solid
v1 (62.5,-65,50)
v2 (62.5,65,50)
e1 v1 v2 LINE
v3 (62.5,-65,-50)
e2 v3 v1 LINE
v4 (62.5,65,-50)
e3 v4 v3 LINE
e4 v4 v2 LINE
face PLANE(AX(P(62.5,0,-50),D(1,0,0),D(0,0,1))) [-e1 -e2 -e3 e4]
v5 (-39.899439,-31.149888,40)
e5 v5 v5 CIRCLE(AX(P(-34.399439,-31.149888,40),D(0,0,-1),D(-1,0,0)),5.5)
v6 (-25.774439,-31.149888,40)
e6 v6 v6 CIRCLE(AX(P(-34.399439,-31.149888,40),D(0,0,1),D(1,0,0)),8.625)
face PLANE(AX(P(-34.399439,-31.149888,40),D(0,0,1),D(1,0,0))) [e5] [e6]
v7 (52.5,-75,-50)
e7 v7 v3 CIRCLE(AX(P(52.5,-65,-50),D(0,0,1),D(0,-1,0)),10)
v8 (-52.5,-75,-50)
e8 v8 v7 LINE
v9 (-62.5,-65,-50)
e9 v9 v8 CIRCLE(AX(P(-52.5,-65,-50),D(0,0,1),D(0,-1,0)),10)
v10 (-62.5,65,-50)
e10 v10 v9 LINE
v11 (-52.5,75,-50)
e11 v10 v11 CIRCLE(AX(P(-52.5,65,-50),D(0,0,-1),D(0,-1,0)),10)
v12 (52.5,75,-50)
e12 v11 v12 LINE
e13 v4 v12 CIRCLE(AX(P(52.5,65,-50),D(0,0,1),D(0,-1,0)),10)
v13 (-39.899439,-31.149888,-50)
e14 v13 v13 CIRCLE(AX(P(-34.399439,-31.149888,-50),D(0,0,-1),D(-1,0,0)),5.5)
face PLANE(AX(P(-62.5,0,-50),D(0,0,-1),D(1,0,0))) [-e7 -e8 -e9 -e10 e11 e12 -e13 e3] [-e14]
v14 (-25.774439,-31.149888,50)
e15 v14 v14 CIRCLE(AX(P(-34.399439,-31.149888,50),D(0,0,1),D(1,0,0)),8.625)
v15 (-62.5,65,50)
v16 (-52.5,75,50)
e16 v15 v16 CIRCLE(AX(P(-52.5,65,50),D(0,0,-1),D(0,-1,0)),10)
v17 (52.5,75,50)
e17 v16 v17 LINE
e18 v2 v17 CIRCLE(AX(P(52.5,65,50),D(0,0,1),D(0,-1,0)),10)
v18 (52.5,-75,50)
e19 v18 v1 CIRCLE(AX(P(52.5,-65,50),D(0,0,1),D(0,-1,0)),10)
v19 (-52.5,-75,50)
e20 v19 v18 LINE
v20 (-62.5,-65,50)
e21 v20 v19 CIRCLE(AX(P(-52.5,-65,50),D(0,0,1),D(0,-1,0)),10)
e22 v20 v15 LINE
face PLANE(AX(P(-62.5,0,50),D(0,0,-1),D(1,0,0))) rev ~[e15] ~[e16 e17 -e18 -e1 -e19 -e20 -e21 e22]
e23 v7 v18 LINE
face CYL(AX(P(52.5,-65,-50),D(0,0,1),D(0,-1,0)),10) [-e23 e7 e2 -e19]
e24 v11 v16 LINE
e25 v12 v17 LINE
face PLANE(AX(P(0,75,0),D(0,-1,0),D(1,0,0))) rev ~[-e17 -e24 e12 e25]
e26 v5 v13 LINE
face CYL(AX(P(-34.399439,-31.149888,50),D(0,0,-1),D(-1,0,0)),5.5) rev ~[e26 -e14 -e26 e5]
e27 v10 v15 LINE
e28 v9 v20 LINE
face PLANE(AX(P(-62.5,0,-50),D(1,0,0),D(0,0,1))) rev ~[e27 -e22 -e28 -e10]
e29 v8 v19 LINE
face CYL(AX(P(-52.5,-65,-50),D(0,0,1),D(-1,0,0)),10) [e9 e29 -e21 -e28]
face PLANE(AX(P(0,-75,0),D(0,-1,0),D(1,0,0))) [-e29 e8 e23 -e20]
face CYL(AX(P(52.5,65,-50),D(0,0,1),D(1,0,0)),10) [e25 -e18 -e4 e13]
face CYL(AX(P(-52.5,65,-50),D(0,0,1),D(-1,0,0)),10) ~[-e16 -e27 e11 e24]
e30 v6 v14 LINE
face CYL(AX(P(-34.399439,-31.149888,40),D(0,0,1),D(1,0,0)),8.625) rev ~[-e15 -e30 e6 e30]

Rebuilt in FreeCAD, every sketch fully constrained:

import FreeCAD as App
import Part
import Sketcher

V = App.Vector


def edges_at(feature, points):
    """Names of the edges that pass closest to the given points."""
    edges = feature.Shape.Edges
    near = lambda p: min(range(len(edges)), key=lambda i: edges[i].distToShape(Part.Vertex(*p))[0])
    return sorted({f"Edge{near(p) + 1}" for p in points})


def add_polygon(sketch, points):
    """Adds a closed chain of lines whose ends are joined by coincident constraints."""
    first, n = sketch.GeometryCount, len(points)
    for a, b in zip(points, points[1:] + points[:1]):
        sketch.addGeometry(Part.LineSegment(App.Vector(*a, 0), App.Vector(*b, 0)), False)
    for i in range(n):
        sketch.addConstraint(Sketcher.Constraint("Coincident", first + i, 2, first + (i + 1) % n, 1))

doc = App.newDocument("Part")
params = doc.addObject("Spreadsheet::Sheet", "Params")
for row, (alias, value) in enumerate([
    ("sketch1_width", "125 mm"),
    ("sketch1_height", "100 mm"),
    ("pad1_length", "75 mm"),
    ("pad1_length2", "75 mm"),
    ("fillet_radius", "10 mm"),
    ("sketch2_diameter", "11 mm"),
    ("hole_diameter", "11 mm"),
    ("hole_cbore_diameter", "17.25 mm"),
    ("hole_cbore_depth", "10 mm"),
], start=1):
    params.set(f"A{row}", alias)
    params.set(f"B{row}", "=" + value)
    params.setAlias(f"B{row}", alias)

body = doc.addObject("PartDesign::Body", "Body")

sketch1 = doc.addObject("Sketcher::SketchObject", "Sketch")
body.addObject(sketch1)
sketch1.AttachmentSupport = (doc.XZ_Plane, [""])
sketch1.MapMode = "FlatFace"
add_polygon(sketch1, [(-62, 50), (-62, -50), (62, -50), (62, 50)])
sketch1.addConstraint([
    Sketcher.Constraint("Vertical", 0),
    Sketcher.Constraint("Horizontal", 1),
    Sketcher.Constraint("Vertical", 2),
    Sketcher.Constraint("Horizontal", 3),
    Sketcher.Constraint("Symmetric", 0, 2, 2, 2, -1, 1),
    Sketcher.Constraint("DistanceX", 1, 1, 1, 2, 125.0),
    Sketcher.Constraint("DistanceY", 0, 2, 0, 1, 100.0),
])
sketch1.setExpression("Constraints[9]", "Params.sketch1_width")
sketch1.setExpression("Constraints[10]", "Params.sketch1_height")
pad1 = doc.addObject("PartDesign::Pad", "Pad")
body.addObject(pad1)
pad1.Profile = sketch1
pad1.Type = "TwoLengths"
pad1.setExpression("Length", "Params.pad1_length")
pad1.setExpression("Length2", "Params.pad1_length2")
doc.recompute()

fillet = doc.addObject("PartDesign::Fillet", "Fillet")
body.addObject(fillet)
fillet.Base = (pad1, edges_at(pad1, [
    (62.5, -75, 0),
    (62.5, 75, 0),
    (-62.5, 75, 0),
    (-62.5, -75, 0),
]))
fillet.setExpression("Radius", "Params.fillet_radius")

sketch2 = doc.addObject("Sketcher::SketchObject", "Sketch001")
body.addObject(sketch2)
sketch2.AttachmentSupport = (doc.XY_Plane, [""])
sketch2.MapMode = "FlatFace"
sketch2.AttachmentOffset = App.Placement(V(0, 0, 50), App.Rotation())
sketch2.addGeometry(Part.Circle(V(-34, -31, 0), V(0, 0, 1), 6), False)
sketch2.addConstraint([
    Sketcher.Constraint("Diameter", 0, 11.0),
    Sketcher.Constraint("DistanceX", 0, 3, -1, 1, 34.399439),
    Sketcher.Constraint("DistanceY", 0, 3, -1, 1, 31.149888),
])
sketch2.setExpression("Constraints[0]", "Params.sketch2_diameter")
doc.recompute()
hole = doc.addObject("PartDesign::Hole", "Hole")
body.addObject(hole)
hole.Profile = sketch2
hole.ThreadType = "None"
hole.setExpression("Diameter", "Params.hole_diameter")
hole.DepthType = "ThroughAll"
hole.HoleCutType = "Counterbore"
hole.setExpression("HoleCutDiameter", "Params.hole_cbore_diameter")
hole.setExpression("HoleCutDepth", "Params.hole_cbore_depth")

doc.recompute()
